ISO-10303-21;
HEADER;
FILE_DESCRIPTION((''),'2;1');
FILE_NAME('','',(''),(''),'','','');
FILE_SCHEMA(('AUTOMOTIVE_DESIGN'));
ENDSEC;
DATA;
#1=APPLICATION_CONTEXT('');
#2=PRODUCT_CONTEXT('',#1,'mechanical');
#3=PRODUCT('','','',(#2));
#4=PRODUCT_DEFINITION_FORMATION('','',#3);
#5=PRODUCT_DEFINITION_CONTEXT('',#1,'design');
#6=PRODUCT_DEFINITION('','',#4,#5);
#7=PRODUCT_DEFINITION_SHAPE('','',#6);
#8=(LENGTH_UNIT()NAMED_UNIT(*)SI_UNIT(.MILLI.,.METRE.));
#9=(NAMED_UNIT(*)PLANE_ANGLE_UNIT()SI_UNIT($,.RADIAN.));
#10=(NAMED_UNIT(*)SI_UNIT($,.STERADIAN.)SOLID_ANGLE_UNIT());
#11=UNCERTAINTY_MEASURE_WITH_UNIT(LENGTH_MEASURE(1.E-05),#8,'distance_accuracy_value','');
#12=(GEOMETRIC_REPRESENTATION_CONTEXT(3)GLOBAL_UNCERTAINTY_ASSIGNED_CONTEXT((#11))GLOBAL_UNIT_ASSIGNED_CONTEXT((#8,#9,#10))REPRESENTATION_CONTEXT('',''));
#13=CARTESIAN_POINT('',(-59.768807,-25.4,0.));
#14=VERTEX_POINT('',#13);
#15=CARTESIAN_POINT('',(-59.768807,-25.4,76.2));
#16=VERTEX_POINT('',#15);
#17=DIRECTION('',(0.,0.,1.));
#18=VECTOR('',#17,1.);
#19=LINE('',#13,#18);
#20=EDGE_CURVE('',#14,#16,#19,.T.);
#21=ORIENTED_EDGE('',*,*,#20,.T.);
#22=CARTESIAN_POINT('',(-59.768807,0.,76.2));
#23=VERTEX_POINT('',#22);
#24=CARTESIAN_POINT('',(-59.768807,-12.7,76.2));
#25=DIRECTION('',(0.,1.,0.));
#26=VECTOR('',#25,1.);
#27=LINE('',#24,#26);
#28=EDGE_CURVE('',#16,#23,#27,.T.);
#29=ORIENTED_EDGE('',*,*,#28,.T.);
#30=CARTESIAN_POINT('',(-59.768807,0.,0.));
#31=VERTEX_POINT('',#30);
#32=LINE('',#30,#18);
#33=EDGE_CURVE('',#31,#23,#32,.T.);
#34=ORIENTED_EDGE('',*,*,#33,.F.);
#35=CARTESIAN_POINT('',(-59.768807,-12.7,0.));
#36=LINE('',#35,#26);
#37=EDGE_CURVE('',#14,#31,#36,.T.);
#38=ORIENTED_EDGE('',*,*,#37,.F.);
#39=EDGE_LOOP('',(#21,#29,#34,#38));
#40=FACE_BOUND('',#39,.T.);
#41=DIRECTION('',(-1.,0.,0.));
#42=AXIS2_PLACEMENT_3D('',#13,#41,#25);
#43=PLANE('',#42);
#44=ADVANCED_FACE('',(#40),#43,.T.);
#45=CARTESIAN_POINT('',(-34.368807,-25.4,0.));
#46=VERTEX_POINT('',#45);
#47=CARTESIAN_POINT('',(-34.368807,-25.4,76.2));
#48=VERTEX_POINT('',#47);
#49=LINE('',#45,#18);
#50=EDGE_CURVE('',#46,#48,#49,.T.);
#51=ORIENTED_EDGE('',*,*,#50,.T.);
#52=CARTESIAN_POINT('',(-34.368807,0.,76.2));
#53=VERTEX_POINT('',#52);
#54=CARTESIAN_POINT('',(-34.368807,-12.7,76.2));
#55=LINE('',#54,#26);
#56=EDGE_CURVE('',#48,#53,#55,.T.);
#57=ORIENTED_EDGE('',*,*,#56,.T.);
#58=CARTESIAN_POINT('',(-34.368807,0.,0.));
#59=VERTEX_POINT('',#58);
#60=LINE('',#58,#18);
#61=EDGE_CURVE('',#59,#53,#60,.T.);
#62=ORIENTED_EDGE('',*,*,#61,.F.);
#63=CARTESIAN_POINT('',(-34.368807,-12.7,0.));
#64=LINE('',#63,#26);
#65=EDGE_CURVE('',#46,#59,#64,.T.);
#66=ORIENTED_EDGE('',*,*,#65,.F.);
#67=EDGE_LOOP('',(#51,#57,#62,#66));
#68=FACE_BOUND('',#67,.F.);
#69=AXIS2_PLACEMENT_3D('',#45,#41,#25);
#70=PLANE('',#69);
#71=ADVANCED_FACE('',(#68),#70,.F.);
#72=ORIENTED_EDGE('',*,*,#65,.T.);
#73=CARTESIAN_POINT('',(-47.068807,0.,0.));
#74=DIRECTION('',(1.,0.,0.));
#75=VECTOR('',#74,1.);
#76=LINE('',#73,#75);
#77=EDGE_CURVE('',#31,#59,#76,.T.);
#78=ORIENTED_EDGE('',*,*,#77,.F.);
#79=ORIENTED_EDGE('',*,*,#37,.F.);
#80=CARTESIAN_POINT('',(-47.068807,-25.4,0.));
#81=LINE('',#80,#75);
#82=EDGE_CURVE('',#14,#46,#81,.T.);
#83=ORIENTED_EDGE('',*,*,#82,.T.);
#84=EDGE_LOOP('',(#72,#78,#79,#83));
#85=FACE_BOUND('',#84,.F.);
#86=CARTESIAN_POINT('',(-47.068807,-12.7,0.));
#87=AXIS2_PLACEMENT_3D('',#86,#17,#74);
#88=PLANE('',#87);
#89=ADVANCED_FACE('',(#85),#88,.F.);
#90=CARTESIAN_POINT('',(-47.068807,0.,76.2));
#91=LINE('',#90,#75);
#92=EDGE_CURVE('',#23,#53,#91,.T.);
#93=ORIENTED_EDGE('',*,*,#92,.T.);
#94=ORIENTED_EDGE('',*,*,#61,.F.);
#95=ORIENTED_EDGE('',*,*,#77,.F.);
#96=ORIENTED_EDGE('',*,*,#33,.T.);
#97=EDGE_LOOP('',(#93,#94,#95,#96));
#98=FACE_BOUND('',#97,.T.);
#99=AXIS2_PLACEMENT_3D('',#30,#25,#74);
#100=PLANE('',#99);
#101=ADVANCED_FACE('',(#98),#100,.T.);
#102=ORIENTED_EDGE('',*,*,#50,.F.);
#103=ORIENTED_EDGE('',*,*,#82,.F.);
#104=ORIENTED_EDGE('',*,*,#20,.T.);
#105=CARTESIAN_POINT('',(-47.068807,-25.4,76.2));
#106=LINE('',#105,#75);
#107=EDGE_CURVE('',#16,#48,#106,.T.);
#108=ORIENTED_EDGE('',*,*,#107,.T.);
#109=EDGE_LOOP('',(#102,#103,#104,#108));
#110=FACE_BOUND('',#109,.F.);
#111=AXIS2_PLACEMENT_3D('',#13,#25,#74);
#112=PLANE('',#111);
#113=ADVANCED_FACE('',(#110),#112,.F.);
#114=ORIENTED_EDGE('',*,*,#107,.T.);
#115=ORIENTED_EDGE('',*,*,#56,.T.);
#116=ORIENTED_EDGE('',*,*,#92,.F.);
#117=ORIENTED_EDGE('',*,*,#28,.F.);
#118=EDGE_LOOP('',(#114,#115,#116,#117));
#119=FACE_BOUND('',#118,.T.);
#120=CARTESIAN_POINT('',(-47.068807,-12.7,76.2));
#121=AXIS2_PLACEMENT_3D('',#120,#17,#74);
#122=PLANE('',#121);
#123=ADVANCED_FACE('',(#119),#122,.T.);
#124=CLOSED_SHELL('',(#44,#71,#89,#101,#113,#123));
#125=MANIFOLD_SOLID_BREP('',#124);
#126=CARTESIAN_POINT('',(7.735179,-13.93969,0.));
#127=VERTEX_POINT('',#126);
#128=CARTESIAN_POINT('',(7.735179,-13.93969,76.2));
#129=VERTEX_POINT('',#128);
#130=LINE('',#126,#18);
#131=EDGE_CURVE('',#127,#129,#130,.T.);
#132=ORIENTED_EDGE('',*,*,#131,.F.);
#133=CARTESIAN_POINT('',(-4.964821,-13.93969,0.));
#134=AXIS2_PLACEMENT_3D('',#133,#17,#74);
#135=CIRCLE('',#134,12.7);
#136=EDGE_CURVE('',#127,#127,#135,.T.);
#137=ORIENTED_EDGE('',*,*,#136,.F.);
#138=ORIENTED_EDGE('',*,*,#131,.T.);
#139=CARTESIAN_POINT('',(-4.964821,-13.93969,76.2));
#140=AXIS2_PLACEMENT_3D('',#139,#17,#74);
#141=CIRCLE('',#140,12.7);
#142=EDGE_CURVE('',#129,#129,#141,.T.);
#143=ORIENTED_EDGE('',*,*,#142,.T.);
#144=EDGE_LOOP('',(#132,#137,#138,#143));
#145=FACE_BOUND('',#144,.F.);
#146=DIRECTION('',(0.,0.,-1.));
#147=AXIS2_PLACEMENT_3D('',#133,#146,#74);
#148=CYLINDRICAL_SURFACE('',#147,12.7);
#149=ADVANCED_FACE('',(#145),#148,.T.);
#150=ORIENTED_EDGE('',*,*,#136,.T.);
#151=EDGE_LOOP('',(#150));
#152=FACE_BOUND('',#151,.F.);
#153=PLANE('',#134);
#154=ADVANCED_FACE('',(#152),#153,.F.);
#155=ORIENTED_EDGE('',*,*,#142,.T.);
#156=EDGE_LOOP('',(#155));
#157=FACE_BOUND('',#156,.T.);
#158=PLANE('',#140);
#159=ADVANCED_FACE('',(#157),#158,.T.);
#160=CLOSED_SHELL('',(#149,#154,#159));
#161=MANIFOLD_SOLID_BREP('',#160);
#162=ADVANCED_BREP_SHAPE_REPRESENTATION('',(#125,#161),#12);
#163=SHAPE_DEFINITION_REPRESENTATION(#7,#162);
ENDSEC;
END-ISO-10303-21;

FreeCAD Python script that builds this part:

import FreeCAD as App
import Part
import Sketcher

V = App.Vector
Q = App.Units.Quantity


def add_polygon(sketch, points):
    """Adds a closed chain of lines whose ends are joined by coincident constraints."""
    first, n = sketch.GeometryCount, len(points)
    for a, b in zip(points, points[1:] + points[:1]):
        sketch.addGeometry(Part.LineSegment(App.Vector(*a, 0), App.Vector(*b, 0)), False)
    for i in range(n):
        sketch.addConstraint(Sketcher.Constraint("Coincident", first + i, 2, first + (i + 1) % n, 1))

doc = App.newDocument("Part")
body = doc.addObject("PartDesign::Body", "Body")
body.AllowCompound = True

sketch1 = body.newObject("Sketcher::SketchObject", "Sketch")
sketch1.AttachmentSupport = (doc.getObject("XY_Plane"), [""])
sketch1.MapMode = "FlatFace"
add_polygon(sketch1, [(-60, 0), (-60, -25), (-34, -25), (-34, 0)])
sketch1.addGeometry(Part.Circle(V(-5, -14, 0), V(0, 0, 1), 13), False)
sketch1.addConstraint([
    Sketcher.Constraint("Vertical", 0),
    Sketcher.Constraint("Horizontal", 1),
    Sketcher.Constraint("Vertical", 2),
    Sketcher.Constraint("Horizontal", 3),
    Sketcher.Constraint("PointOnObject", 2, 2, -1),
    Sketcher.Constraint("Equal", 3, 0),
    Sketcher.Constraint("Diameter", 4, Q("1 in")),
    Sketcher.Constraint("DistanceX", 1, 1, 1, 2, Q("1 in")),
    Sketcher.Constraint("DistanceX", 4, 3, -1, 1, Q("4.964821 mm")),
    Sketcher.Constraint("DistanceY", 4, 3, -1, 1, Q("13.93969 mm")),
    Sketcher.Constraint("DistanceX", 0, 2, -1, 1, Q("59.768807 mm")),
])
pad1 = body.newObject("PartDesign::Pad", "Pad")
pad1.Profile = sketch1
pad1.Length = Q("3 in")

doc.recompute()
